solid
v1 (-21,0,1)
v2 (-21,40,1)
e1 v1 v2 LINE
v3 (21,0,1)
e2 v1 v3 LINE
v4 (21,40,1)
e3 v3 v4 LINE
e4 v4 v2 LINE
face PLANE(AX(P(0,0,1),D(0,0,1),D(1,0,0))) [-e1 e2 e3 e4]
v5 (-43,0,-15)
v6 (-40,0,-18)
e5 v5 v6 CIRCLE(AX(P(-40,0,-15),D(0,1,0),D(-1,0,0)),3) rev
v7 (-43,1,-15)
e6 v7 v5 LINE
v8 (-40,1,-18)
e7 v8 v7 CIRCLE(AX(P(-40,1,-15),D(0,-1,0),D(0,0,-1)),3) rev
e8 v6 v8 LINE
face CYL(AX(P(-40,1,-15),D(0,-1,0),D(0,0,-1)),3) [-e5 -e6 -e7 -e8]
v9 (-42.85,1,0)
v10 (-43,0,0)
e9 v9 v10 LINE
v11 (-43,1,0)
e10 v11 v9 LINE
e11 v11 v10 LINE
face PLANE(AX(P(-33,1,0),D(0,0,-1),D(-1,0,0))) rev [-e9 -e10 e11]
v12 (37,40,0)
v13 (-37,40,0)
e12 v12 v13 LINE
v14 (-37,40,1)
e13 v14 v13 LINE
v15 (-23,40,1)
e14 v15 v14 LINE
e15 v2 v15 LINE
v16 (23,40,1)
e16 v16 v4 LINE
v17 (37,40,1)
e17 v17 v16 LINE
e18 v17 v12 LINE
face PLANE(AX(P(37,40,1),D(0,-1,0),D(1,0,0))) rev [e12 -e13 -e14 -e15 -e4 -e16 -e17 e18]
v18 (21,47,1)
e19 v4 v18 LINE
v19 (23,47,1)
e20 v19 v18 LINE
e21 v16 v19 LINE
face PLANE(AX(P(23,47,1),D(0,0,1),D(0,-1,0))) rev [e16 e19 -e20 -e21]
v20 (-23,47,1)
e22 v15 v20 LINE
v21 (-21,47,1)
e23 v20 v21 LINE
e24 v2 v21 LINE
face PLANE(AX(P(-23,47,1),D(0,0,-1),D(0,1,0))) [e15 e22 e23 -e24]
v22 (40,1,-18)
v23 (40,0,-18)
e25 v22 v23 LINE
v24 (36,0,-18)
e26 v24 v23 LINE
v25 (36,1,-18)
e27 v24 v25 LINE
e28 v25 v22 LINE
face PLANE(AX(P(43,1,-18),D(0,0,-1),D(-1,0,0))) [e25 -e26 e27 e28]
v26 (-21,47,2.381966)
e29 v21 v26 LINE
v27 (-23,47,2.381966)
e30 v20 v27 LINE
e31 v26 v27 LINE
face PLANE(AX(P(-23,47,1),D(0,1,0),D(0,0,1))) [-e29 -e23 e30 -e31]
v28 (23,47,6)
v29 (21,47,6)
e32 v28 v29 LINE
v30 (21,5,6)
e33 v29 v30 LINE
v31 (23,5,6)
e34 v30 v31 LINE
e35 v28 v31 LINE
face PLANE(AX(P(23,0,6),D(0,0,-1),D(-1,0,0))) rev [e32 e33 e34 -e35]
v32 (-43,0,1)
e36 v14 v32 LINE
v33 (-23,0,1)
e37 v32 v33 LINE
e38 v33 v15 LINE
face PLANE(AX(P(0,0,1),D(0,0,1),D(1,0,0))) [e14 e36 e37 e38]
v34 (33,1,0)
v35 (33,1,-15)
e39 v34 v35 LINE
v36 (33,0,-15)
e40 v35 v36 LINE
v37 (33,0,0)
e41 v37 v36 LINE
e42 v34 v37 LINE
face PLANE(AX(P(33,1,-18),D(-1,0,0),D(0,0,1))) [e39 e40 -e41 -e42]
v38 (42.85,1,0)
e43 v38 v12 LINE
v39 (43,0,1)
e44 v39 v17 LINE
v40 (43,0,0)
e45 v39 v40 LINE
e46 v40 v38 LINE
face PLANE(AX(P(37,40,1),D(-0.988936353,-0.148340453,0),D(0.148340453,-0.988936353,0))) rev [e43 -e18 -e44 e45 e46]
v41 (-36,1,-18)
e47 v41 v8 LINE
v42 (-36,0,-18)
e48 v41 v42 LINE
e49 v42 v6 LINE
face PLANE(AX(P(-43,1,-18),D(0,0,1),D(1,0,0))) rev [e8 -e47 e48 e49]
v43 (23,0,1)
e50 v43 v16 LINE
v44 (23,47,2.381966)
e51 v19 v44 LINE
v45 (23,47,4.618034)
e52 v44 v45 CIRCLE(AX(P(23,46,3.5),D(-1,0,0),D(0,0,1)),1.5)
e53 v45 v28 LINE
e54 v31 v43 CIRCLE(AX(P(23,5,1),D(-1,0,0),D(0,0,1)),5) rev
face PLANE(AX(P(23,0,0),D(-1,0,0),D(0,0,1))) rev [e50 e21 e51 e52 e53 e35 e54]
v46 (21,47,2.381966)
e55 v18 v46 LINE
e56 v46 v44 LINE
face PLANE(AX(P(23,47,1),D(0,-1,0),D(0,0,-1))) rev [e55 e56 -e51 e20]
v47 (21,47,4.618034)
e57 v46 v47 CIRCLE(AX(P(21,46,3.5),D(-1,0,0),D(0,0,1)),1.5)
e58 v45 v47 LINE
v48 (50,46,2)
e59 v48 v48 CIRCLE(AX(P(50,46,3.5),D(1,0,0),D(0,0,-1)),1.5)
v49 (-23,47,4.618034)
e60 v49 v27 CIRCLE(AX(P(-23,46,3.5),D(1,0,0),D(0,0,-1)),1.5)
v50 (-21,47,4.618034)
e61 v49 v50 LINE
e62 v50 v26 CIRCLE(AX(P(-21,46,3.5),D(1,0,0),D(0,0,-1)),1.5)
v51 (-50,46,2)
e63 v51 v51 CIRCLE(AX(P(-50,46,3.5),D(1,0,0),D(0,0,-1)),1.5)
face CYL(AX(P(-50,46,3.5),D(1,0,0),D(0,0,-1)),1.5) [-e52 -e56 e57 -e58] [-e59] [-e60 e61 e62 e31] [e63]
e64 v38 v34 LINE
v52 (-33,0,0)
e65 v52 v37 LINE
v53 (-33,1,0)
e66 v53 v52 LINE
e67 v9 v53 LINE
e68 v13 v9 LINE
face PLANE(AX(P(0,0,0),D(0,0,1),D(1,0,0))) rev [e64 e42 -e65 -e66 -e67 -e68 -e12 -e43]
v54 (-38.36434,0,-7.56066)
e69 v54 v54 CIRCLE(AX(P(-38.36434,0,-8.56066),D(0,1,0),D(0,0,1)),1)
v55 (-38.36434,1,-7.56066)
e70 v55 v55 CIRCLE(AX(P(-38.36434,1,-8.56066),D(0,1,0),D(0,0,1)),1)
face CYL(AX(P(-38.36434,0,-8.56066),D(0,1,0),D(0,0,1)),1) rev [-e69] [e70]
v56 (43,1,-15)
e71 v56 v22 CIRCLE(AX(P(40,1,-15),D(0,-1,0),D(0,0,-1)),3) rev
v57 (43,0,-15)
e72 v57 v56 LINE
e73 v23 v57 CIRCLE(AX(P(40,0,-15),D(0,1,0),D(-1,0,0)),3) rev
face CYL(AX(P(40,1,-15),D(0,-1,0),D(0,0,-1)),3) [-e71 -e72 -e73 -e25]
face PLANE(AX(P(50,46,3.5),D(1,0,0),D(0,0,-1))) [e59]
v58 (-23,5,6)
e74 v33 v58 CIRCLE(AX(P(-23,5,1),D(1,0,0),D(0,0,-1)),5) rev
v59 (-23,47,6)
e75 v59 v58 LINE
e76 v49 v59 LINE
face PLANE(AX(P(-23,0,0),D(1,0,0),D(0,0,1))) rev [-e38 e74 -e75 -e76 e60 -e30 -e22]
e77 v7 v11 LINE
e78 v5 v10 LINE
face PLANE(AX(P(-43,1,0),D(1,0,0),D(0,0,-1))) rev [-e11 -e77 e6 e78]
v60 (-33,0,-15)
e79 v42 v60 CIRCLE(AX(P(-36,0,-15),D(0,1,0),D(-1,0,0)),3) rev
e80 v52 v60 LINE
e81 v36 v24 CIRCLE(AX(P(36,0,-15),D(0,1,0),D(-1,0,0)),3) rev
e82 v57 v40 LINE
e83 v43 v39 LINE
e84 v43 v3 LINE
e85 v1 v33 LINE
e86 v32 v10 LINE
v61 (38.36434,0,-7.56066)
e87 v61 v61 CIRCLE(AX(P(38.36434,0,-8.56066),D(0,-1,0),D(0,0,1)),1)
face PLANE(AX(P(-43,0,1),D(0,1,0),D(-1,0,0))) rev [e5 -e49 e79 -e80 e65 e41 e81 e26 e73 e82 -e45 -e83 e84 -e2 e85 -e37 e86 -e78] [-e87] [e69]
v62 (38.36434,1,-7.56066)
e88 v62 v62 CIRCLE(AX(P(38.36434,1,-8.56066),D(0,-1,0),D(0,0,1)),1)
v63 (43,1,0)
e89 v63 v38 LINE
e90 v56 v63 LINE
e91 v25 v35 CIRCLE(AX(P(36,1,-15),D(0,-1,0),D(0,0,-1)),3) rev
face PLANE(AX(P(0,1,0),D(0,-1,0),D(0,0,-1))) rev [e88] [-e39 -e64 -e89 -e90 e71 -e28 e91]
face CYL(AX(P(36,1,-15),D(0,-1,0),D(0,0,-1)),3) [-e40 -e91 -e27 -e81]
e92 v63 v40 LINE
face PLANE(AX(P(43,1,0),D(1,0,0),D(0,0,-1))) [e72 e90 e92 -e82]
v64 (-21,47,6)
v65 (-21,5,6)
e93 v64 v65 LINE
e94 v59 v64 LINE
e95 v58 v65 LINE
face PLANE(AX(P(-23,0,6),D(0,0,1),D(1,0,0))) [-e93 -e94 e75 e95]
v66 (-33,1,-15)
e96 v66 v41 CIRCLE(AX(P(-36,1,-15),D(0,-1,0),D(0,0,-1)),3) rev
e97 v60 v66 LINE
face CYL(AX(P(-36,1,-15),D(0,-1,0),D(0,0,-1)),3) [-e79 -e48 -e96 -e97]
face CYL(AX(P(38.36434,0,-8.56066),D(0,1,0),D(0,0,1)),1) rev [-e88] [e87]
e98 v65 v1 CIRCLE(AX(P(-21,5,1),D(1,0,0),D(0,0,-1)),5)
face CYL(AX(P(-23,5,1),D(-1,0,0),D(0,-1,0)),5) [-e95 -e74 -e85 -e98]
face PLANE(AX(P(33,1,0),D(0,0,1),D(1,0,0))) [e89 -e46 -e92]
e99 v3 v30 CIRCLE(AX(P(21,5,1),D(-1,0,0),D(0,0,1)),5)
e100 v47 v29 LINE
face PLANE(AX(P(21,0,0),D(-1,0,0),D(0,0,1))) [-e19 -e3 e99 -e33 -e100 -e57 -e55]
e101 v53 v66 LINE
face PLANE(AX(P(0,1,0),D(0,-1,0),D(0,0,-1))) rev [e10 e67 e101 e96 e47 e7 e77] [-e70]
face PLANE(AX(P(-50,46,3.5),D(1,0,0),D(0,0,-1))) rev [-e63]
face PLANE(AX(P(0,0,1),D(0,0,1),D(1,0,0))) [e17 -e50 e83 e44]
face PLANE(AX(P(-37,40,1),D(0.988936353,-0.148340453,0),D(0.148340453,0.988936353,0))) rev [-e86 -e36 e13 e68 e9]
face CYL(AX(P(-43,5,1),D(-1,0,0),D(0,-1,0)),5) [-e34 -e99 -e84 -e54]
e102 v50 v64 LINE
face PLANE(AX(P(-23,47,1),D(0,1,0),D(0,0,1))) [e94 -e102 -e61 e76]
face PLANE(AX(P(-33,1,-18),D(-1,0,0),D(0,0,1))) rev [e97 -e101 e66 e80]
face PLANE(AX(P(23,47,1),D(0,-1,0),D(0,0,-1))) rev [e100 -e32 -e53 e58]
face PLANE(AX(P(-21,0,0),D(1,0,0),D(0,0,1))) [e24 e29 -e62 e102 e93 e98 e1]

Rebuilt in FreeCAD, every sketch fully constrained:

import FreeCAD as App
import Part
import Sketcher


def edges_at(feature, points):
    """Names of the edges that pass closest to the given points."""
    edges = feature.Shape.Edges
    near = lambda p: min(range(len(edges)), key=lambda i: edges[i].distToShape(Part.Vertex(*p))[0])
    return sorted({f"Edge{near(p) + 1}" for p in points})


def add_polygon(sketch, points):
    """Adds a closed chain of lines whose ends are joined by coincident constraints."""
    first, n = sketch.GeometryCount, len(points)
    for a, b in zip(points, points[1:] + points[:1]):
        sketch.addGeometry(Part.LineSegment(App.Vector(*a, 0), App.Vector(*b, 0)), False)
    for i in range(n):
        sketch.addConstraint(Sketcher.Constraint("Coincident", first + i, 2, first + (i + 1) % n, 1))

doc = App.newDocument("Part")
body = doc.addObject("PartDesign::Body", "Body")

# Sketch on XY plane
sketch1 = body.newObject("Sketcher::SketchObject", "Sketch")
sketch1.AttachmentSupport = (doc.getObject("XY_Plane"), [""])
sketch1.MapMode = "FlatFace"
add_polygon(sketch1, [(-43, 0), (43, 0), (37, 40), (-37, 40)])  # lines 0-3
sketch1.addConstraint(Sketcher.Constraint("Horizontal", 0))
sketch1.addConstraint(Sketcher.Constraint("Horizontal", 2))
sketch1.addConstraint(Sketcher.Constraint("Symmetric", 0, 2, 3, 2, -1, 1))
sketch1.addConstraint(Sketcher.Constraint("Equal", 1, 3))
sketch1.addConstraint(Sketcher.Constraint("DistanceX", 0, 1, 0, 2, 86.0))
sketch1.addConstraint(Sketcher.Constraint("DistanceX", 2, 2, 2, 1, 74.0))
sketch1.addConstraint(Sketcher.Constraint("DistanceY", -1, 1, 1, 2, 40.0))
pad1 = body.newObject("PartDesign::Pad", "Pad")
pad1.Profile = sketch1
pad1.Length = 1

# Sketch on YZ plane
sketch2 = body.newObject("Sketcher::SketchObject", "Sketch001")
sketch2.AttachmentSupport = (doc.getObject("YZ_Plane"), [""])
sketch2.MapMode = "FlatFace"
sketch2.AttachmentOffset = App.Placement(App.Vector(0, 0, 21), App.Rotation())
add_polygon(sketch2, [(47, 6), (0, 6), (0, 1), (47, 1)])  # lines 0-3
sketch2.addConstraint(Sketcher.Constraint("Horizontal", 0))
sketch2.addConstraint(Sketcher.Constraint("Vertical", 1))
sketch2.addConstraint(Sketcher.Constraint("Horizontal", 2))
sketch2.addConstraint(Sketcher.Constraint("Vertical", 3))
sketch2.addConstraint(Sketcher.Constraint("PointOnObject", 0, 2, -2))
sketch2.addConstraint(Sketcher.Constraint("DistanceX", 0, 2, 0, 1, 47.0))
sketch2.addConstraint(Sketcher.Constraint("DistanceY", 1, 2, 1, 1, 5.0))
sketch2.addConstraint(Sketcher.Constraint("DistanceY", -1, 1, 0, 2, 6.0))
pad2 = body.newObject("PartDesign::Pad", "Pad001")
pad2.Profile = sketch2
pad2.Length = 2
doc.recompute()

fillet = body.newObject("PartDesign::Fillet", "Fillet")
fillet.Base = (pad2, edges_at(pad2, [(22, 0, 6)]))
fillet.Radius = 5
doc.recompute()

mirrored = body.newObject("PartDesign::Mirrored", "Mirrored")
mirrored.Originals = [pad2]
mirrored.MirrorPlane = (doc.getObject("YZ_Plane"), [""])
body.Tip = mirrored
doc.recompute()

fillet2 = body.newObject("PartDesign::Fillet", "Fillet001")
fillet2.Base = (mirrored, edges_at(mirrored, [(-22, 0, 6)]))
fillet2.Radius = 5

# Sketch on YZ plane
sketch3 = body.newObject("Sketcher::SketchObject", "Sketch002")
sketch3.AttachmentSupport = (doc.getObject("YZ_Plane"), [""])
sketch3.MapMode = "FlatFace"
sketch3.AttachmentOffset = App.Placement(App.Vector(0, 0, 50), App.Rotation())
sketch3.addGeometry(Part.Circle(App.Vector(46, 3.5, 0), App.Vector(0, 0, 1), 1.5), False)
sketch3.addConstraint(Sketcher.Constraint("Diameter", 0, 3.0))
sketch3.addConstraint(Sketcher.Constraint("DistanceX", -1, 1, 0, 3, 46.0))
sketch3.addConstraint(Sketcher.Constraint("DistanceY", -1, 1, 0, 3, 3.5))
pad3 = body.newObject("PartDesign::Pad", "Pad002")
pad3.Profile = sketch3
pad3.Length = 100
pad3.Reversed = True

# Sketch on XZ plane
sketch4 = body.newObject("Sketcher::SketchObject", "Sketch003")
sketch4.AttachmentSupport = (doc.getObject("XZ_Plane"), [""])
sketch4.MapMode = "FlatFace"
add_polygon(sketch4, [(-43, -18), (-43, 0), (-33, 0), (-33, -18)])  # lines 0-3
sketch4.addConstraint(Sketcher.Constraint("Vertical", 0))
sketch4.addConstraint(Sketcher.Constraint("Horizontal", 1))
sketch4.addConstraint(Sketcher.Constraint("Vertical", 2))
sketch4.addConstraint(Sketcher.Constraint("Horizontal", 3))
sketch4.addConstraint(Sketcher.Constraint("PointOnObject", 0, 2, -1))
sketch4.addConstraint(Sketcher.Constraint("DistanceX", 1, 1, 1, 2, 10.0))
sketch4.addConstraint(Sketcher.Constraint("DistanceY", 0, 1, 0, 2, 18.0))
sketch4.addConstraint(Sketcher.Constraint("DistanceX", 0, 2, -1, 1, 43.0))
pad4 = body.newObject("PartDesign::Pad", "Pad003")
pad4.Profile = sketch4
pad4.Length = 1
pad4.Reversed = True
doc.recompute()

fillet3 = body.newObject("PartDesign::Fillet", "Fillet002")
fillet3.Base = (pad4, edges_at(pad4, [(-33, 0.5, -18), (-43, 0.5, -18)]))
fillet3.Radius = 3

# Sketch on XZ plane
sketch5 = body.newObject("Sketcher::SketchObject", "Sketch004")
sketch5.AttachmentSupport = (doc.getObject("XZ_Plane"), [""])
sketch5.MapMode = "FlatFace"
sketch5.AttachmentOffset = App.Placement(App.Vector(0, 0, -1), App.Rotation())
sketch5.addGeometry(Part.Circle(App.Vector(-38.4, -8.6, 0), App.Vector(0, 0, 1), 1), False)
sketch5.addConstraint(Sketcher.Constraint("Diameter", 0, 2.0))
sketch5.addConstraint(Sketcher.Constraint("DistanceX", 0, 3, -1, 1, 38.36434))
sketch5.addConstraint(Sketcher.Constraint("DistanceY", 0, 3, -1, 1, 8.56066))
pocket1 = body.newObject("PartDesign::Pocket", "Pocket")
pocket1.Profile = sketch5
pocket1.Length = 1
pocket1.Reversed = True
doc.recompute()

mirrored2 = body.newObject("PartDesign::Mirrored", "Mirrored001")
mirrored2.Originals = [pad4, pocket1]
mirrored2.MirrorPlane = (doc.getObject("YZ_Plane"), [""])
body.Tip = mirrored2
doc.recompute()

fillet4 = body.newObject("PartDesign::Fillet", "Fillet003")
fillet4.Base = (mirrored2, edges_at(mirrored2, [(33, 0.5, -18), (43, 0.5, -18)]))
fillet4.Radius = 3

doc.recompute()
